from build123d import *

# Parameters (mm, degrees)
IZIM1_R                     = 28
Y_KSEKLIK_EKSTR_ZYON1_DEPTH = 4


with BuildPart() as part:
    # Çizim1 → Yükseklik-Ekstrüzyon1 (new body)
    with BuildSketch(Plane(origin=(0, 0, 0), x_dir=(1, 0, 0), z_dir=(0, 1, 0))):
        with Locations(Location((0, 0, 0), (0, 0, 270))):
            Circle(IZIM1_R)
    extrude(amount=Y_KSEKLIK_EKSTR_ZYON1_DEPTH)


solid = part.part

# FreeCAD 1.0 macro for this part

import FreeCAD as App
import Part
import Sketcher

doc = App.newDocument("Part")
params = doc.addObject("Spreadsheet::Sheet", "Params")
for row, (alias, value) in enumerate([
    ("sketch1_diameter", "56 mm"),
    ("pad1_length", "4 mm"),
], start=1):
    params.set(f"A{row}", alias)
    params.set(f"B{row}", "=" + value)
    params.setAlias(f"B{row}", alias)

body = doc.addObject("PartDesign::Body", "Body")

# Sketch on XZ plane
sketch1 = body.newObject("Sketcher::SketchObject", "Sketch")
sketch1.AttachmentSupport = (doc.getObject("XZ_Plane"), [""])
sketch1.MapMode = "FlatFace"
sketch1.addGeometry(Part.Circle(App.Vector(0, 0, 0), App.Vector(0, 0, 1), 28), False)
sketch1.addConstraint(Sketcher.Constraint("Coincident", 0, 3, -1, 1))
sketch1.addConstraint(Sketcher.Constraint("Diameter", 0, 56.0))
sketch1.setExpression("Constraints[1]", "Params.sketch1_diameter")
pad1 = body.newObject("PartDesign::Pad", "Pad")
pad1.Profile = sketch1
pad1.setExpression("Length", "Params.pad1_length")
pad1.Reversed = True

doc.recompute()
